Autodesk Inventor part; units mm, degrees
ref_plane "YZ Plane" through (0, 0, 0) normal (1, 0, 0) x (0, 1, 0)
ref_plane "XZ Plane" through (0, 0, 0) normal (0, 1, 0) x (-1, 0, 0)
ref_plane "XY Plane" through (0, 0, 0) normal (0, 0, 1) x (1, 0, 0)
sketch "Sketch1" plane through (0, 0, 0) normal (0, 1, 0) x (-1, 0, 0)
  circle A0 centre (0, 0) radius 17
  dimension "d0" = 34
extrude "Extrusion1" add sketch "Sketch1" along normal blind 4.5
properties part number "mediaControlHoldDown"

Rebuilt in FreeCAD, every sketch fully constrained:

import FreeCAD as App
import Part
import Sketcher

V = App.Vector
Q = App.Units.Quantity

doc = App.newDocument("Part")
body = doc.addObject("PartDesign::Body", "Body")

# Sketch on XZ plane
sketch1 = body.newObject("Sketcher::SketchObject", "Sketch")
sketch1.AttachmentSupport = (doc.getObject("XZ_Plane"), [""])
sketch1.MapMode = "FlatFace"
sketch1.addGeometry(Part.Circle(V(0, 0, 0), V(0, 0, 1), 17), False)
sketch1.addConstraint(Sketcher.Constraint("Coincident", 0, 3, -1, 1))
sketch1.addConstraint(Sketcher.Constraint("Diameter", 0, Q("34 mm")))
pad1 = body.newObject("PartDesign::Pad", "Pad")
pad1.Profile = sketch1
pad1.Length = 4.5
pad1.Reversed = True

doc.recompute()
